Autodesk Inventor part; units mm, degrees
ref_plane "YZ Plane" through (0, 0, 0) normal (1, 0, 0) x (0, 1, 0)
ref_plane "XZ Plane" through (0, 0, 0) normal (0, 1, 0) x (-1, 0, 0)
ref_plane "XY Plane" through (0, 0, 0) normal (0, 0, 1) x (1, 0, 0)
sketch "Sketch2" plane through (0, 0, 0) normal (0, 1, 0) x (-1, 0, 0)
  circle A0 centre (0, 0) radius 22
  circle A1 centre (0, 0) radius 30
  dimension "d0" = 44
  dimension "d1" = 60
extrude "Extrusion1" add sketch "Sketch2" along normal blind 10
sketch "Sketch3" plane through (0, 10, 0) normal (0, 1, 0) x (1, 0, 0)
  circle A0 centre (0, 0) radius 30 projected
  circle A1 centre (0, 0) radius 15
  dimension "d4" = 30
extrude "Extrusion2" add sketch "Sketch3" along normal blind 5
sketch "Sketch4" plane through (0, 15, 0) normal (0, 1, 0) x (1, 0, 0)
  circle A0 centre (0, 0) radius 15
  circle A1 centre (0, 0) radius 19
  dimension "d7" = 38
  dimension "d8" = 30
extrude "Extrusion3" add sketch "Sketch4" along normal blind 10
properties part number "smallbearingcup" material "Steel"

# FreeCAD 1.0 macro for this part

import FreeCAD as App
import Part
import Sketcher
from FreeCAD import Vector
Q = App.Units.Quantity

doc = App.newDocument("Part")
body = doc.addObject("PartDesign::Body", "Body")

sketch1 = body.newObject("Sketcher::SketchObject", "Sketch")
sketch1.AttachmentSupport = (doc.getObject("XZ_Plane"), [""])
sketch1.MapMode = "FlatFace"
sketch1.addGeometry([
    Part.Circle(Vector(0, 0, 0), Vector(0, 0, 1), 30),
    Part.Circle(Vector(0, 0, 0), Vector(0, 0, 1), 22),
], False)
sketch1.addConstraint([
    Sketcher.Constraint("Coincident", 0, 3, -1, 1),
    Sketcher.Constraint("Coincident", 1, 3, -1, 1),
    Sketcher.Constraint("Diameter", 0, Q("60 mm")),
    Sketcher.Constraint("Diameter", 1, Q("44 mm")),
])
pad1 = body.newObject("PartDesign::Pad", "Pad")
pad1.Profile = sketch1
pad1.Length = 10
pad1.Reversed = True

sketch2 = body.newObject("Sketcher::SketchObject", "Sketch001")
sketch2.AttachmentSupport = (doc.getObject("XZ_Plane"), [""])
sketch2.MapMode = "FlatFace"
sketch2.AttachmentOffset = App.Placement(Vector(0, 0, -10), App.Rotation())
sketch2.addGeometry([
    Part.Circle(Vector(0, 0, 0), Vector(0, 0, 1), 30),
    Part.Circle(Vector(0, 0, 0), Vector(0, 0, 1), 15),
], False)
sketch2.addConstraint([
    Sketcher.Constraint("Coincident", 0, 3, -1, 1),
    Sketcher.Constraint("Coincident", 1, 3, -1, 1),
    Sketcher.Constraint("Diameter", 0, Q("60 mm")),
    Sketcher.Constraint("Diameter", 1, Q("30 mm")),
])
pad2 = body.newObject("PartDesign::Pad", "Pad001")
pad2.Profile = sketch2
pad2.Length = 5
pad2.Reversed = True

sketch3 = body.newObject("Sketcher::SketchObject", "Sketch002")
sketch3.AttachmentSupport = (doc.getObject("XZ_Plane"), [""])
sketch3.MapMode = "FlatFace"
sketch3.AttachmentOffset = App.Placement(Vector(0, 0, -15), App.Rotation())
sketch3.addGeometry([
    Part.Circle(Vector(0, 0, 0), Vector(0, 0, 1), 19),
    Part.Circle(Vector(0, 0, 0), Vector(0, 0, 1), 15),
], False)
sketch3.addConstraint([
    Sketcher.Constraint("Coincident", 0, 3, -1, 1),
    Sketcher.Constraint("Coincident", 1, 3, -1, 1),
    Sketcher.Constraint("Diameter", 0, Q("38 mm")),
    Sketcher.Constraint("Diameter", 1, Q("30 mm")),
])
pad3 = body.newObject("PartDesign::Pad", "Pad002")
pad3.Profile = sketch3
pad3.Length = 10
pad3.Reversed = True

doc.recompute()
